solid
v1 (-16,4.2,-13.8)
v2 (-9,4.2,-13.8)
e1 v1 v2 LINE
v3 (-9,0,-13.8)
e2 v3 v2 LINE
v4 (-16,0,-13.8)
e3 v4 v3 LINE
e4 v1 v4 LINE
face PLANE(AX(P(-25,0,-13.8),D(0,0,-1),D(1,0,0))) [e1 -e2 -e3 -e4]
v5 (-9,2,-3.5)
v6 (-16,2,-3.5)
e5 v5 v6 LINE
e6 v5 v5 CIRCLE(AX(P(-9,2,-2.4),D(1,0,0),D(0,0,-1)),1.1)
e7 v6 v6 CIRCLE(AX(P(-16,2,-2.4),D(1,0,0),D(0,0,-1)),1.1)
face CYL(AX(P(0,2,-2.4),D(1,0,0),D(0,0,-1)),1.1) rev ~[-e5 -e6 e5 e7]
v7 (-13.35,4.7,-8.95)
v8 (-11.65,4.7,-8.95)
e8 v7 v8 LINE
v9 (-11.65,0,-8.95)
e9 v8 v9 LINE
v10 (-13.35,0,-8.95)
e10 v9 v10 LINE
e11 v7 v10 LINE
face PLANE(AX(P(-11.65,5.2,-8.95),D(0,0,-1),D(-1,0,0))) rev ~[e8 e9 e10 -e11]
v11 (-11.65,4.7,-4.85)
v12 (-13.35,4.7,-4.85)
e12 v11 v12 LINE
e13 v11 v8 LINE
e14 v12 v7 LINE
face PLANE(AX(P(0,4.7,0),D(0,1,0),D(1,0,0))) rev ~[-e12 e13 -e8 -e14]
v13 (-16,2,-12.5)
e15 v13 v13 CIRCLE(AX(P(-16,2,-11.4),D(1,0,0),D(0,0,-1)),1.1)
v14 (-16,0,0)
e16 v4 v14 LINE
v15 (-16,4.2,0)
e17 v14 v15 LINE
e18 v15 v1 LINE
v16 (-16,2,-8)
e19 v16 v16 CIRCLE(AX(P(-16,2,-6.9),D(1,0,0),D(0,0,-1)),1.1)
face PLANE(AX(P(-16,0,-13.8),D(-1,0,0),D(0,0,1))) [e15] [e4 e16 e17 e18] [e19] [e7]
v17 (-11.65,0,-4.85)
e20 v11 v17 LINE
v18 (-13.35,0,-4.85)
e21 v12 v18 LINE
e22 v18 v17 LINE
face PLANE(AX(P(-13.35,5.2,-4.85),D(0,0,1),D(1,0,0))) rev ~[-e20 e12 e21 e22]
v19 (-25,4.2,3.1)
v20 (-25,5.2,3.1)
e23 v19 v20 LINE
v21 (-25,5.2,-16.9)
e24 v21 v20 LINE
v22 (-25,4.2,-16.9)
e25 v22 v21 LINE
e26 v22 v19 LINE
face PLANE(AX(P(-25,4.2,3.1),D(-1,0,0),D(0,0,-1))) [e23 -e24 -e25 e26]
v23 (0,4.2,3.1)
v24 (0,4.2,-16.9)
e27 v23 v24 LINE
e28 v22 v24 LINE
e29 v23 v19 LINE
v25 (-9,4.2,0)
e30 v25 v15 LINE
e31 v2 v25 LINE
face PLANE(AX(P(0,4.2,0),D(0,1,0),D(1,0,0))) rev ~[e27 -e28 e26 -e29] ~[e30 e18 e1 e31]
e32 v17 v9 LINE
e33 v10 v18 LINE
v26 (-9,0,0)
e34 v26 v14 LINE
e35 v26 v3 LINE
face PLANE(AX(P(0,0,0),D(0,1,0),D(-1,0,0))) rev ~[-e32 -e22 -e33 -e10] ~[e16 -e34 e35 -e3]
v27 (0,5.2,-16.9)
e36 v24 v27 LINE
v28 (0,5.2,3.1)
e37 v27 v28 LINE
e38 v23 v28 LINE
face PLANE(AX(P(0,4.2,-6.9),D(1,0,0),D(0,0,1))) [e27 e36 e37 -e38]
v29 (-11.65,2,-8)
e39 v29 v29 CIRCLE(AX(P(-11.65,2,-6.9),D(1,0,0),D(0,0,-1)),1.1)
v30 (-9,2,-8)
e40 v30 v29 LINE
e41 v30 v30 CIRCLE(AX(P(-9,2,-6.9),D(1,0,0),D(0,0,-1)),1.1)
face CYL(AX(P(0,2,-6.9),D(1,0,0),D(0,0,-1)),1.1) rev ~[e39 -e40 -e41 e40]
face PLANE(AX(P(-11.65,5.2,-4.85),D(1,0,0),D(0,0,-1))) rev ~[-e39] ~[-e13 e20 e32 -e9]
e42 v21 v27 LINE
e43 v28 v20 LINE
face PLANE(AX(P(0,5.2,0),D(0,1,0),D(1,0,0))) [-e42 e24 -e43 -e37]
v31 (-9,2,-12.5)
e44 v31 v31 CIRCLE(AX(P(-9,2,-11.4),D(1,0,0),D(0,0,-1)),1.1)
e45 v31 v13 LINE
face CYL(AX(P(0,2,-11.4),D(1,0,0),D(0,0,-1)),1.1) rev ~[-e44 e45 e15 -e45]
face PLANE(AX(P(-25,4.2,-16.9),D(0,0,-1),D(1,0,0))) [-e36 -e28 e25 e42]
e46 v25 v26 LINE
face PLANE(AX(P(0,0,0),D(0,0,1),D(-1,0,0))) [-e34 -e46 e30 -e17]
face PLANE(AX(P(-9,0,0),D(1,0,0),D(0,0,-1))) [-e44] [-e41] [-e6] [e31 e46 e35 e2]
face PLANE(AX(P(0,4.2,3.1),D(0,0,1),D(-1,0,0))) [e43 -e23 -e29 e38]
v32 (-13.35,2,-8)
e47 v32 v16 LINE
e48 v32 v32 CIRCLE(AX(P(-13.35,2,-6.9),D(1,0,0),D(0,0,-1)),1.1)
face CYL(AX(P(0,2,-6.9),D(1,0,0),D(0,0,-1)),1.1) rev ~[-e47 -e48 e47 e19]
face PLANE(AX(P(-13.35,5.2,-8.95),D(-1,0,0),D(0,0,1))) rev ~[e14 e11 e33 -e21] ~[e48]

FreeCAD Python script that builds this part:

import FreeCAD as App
import Part
import Sketcher

V = App.Vector
Q = App.Units.Quantity

doc = App.newDocument("Part")
body = doc.addObject("PartDesign::Body", "Body")

sketch1 = body.newObject("Sketcher::SketchObject", "Sketch")
sketch1.AttachmentSupport = (doc.getObject("XZ_Plane"), [""])
sketch1.MapMode = "FlatFace"
sketch1.addGeometry([
    Part.LineSegment(V(-25, 0, 0), V(0, 0, 0)),
    Part.LineSegment(V(0, 0, 0), V(0, -14, 0)),
    Part.LineSegment(V(0, -14, 0), V(-25, -14, 0)),
    Part.LineSegment(V(-25, -14, 0), V(-25, 0, 0)),
], False)
sketch1.addConstraint([
    Sketcher.Constraint("Coincident", 0, 2, 1, 1),
    Sketcher.Constraint("Coincident", 1, 2, 2, 1),
    Sketcher.Constraint("Coincident", 2, 2, 3, 1),
    Sketcher.Constraint("Coincident", 3, 2, 0, 1),
    Sketcher.Constraint("Horizontal", 0),
    Sketcher.Constraint("Vertical", 1),
    Sketcher.Constraint("Horizontal", 2),
    Sketcher.Constraint("Vertical", 3),
    Sketcher.Constraint("Coincident", 0, 2, -1, 1),
    Sketcher.Constraint("DistanceX", 0, 1, 0, 2, Q("25 mm")),
    Sketcher.Constraint("DistanceY", 1, 2, 1, 1, Q("13.8 mm")),
])
pad1 = body.newObject("PartDesign::Pad", "Pad")
pad1.Profile = sketch1
pad1.Length = 4.2
pad1.Reversed = True

sketch2 = body.newObject("Sketcher::SketchObject", "Sketch001")
sketch2.AttachmentSupport = (doc.getObject("YZ_Plane"), [""])
sketch2.MapMode = "FlatFace"
sketch2.addGeometry([
    Part.Circle(V(2, -2.4, 0), V(0, 0, 1), 1.1),
    Part.Circle(V(2, -11.4, 0), V(0, 0, 1), 1.1),
], False)
sketch2.addConstraint([
    Sketcher.Constraint("Equal", 0, 1),
    Sketcher.Constraint("Vertical", 0, 3, 1, 3),
    Sketcher.Constraint("DistanceY", 1, 3, 0, 3, Q("9 mm")),
    Sketcher.Constraint("Diameter", 0, Q("2.1 mm")),
    Sketcher.Constraint("DistanceX", -1, 1, 0, 3, Q("2 mm")),
    Sketcher.Constraint("DistanceY", 0, 3, -1, 1, Q("2.4 mm")),
])
pocket1 = body.newObject("PartDesign::Pocket", "Pocket")
pocket1.Profile = sketch2
pocket1.Length = 20

sketch3 = body.newObject("Sketcher::SketchObject", "Sketch002")
sketch3.AttachmentSupport = (doc.getObject("XZ_Plane"), [""])
sketch3.MapMode = "FlatFace"
sketch3.AttachmentOffset = App.Placement(V(0, 0, -4.2), App.Rotation())
sketch3.addGeometry([
    Part.LineSegment(V(0, -17, 0), V(-25, -17, 0)),
    Part.LineSegment(V(-25, -17, 0), V(-25, 3, 0)),
    Part.LineSegment(V(-25, 3, 0), V(0, 3, 0)),
    Part.LineSegment(V(0, 3, 0), V(0, -17, 0)),
], False)
sketch3.addConstraint([
    Sketcher.Constraint("Coincident", 0, 2, 1, 1),
    Sketcher.Constraint("Coincident", 1, 2, 2, 1),
    Sketcher.Constraint("Coincident", 2, 2, 3, 1),
    Sketcher.Constraint("Coincident", 3, 2, 0, 1),
    Sketcher.Constraint("Horizontal", 0),
    Sketcher.Constraint("Vertical", 1),
    Sketcher.Constraint("Horizontal", 2),
    Sketcher.Constraint("Vertical", 3),
    Sketcher.Constraint("PointOnObject", 2, 2, -2),
    Sketcher.Constraint("DistanceX", 0, 2, 0, 1, Q("25 mm")),
    Sketcher.Constraint("DistanceY", 1, 1, 1, 2, Q("20 mm")),
    Sketcher.Constraint("DistanceY", 0, 2, -1, 1, Q("16.9 mm")),
])
pad2 = body.newObject("PartDesign::Pad", "Pad001")
pad2.Profile = sketch3
pad2.Length = 1
pad2.Reversed = True

sketch4 = body.newObject("Sketcher::SketchObject", "Sketch003")
sketch4.AttachmentSupport = (doc.getObject("YZ_Plane"), [""])
sketch4.MapMode = "FlatFace"
sketch4.addGeometry([
    Part.Circle(V(2, -2.4, 0), V(0, 0, 1), 1.1),
    Part.Circle(V(2, -11.4, 0), V(0, 0, 1), 1.1),
], False)
sketch4.addConstraint([
    Sketcher.Constraint("Equal", 0, 1),
    Sketcher.Constraint("Vertical", 0, 3, 1, 3),
    Sketcher.Constraint("Diameter", 0, Q("2.2 mm")),
    Sketcher.Constraint("DistanceX", -1, 1, 0, 3, Q("2 mm")),
    Sketcher.Constraint("DistanceY", 1, 3, 0, 3, Q("9 mm")),
    Sketcher.Constraint("DistanceY", 0, 3, -1, 1, Q("2.4 mm")),
])
pocket2 = body.newObject("PartDesign::Pocket", "Pocket001")
pocket2.Profile = sketch4
pocket2.Length = 30.5

sketch5 = body.newObject("Sketcher::SketchObject", "Sketch004")
sketch5.AttachmentSupport = (doc.getObject("XZ_Plane"), [""])
sketch5.MapMode = "FlatFace"
sketch5.AttachmentOffset = App.Placement(V(0, 0, -5.2), App.Rotation())
sketch5.addGeometry([
    Part.LineSegment(V(-13.3, -8.9, 0), V(-13.3, -4.8, 0)),
    Part.LineSegment(V(-13.3, -4.8, 0), V(-11.7, -4.8, 0)),
    Part.LineSegment(V(-11.7, -4.8, 0), V(-11.7, -8.9, 0)),
    Part.LineSegment(V(-11.7, -8.9, 0), V(-13.3, -8.9, 0)),
], False)
sketch5.addConstraint([
    Sketcher.Constraint("Coincident", 0, 2, 1, 1),
    Sketcher.Constraint("Coincident", 1, 2, 2, 1),
    Sketcher.Constraint("Coincident", 2, 2, 3, 1),
    Sketcher.Constraint("Coincident", 3, 2, 0, 1),
    Sketcher.Constraint("Vertical", 0),
    Sketcher.Constraint("Horizontal", 1),
    Sketcher.Constraint("Vertical", 2),
    Sketcher.Constraint("Horizontal", 3),
    Sketcher.Constraint("DistanceX", 1, 1, 1, 2, Q("1.7 mm")),
    Sketcher.Constraint("DistanceY", 0, 1, 0, 2, Q("4.1 mm")),
    Sketcher.Constraint("DistanceX", 1, 2, -1, 1, Q("11.65 mm")),
    Sketcher.Constraint("DistanceY", 0, 2, -1, 1, Q("4.85 mm")),
])
pocket3 = body.newObject("PartDesign::Pocket", "Pocket002")
pocket3.Profile = sketch5
pocket3.Length = 8.45
pocket3.Reversed = True

sketch6 = body.newObject("Sketcher::SketchObject", "Sketch005")
sketch6.AttachmentSupport = (doc.getObject("YZ_Plane"), [""])
sketch6.MapMode = "FlatFace"
sketch6.addGeometry(Part.Circle(V(2, -6.9, 0), V(0, 0, 1), 1.1), False)
sketch6.addConstraint([
    Sketcher.Constraint("Diameter", 0, Q("2.2 mm")),
    Sketcher.Constraint("DistanceX", -1, 1, 0, 3, Q("2 mm")),
    Sketcher.Constraint("DistanceY", 0, 3, -1, 1, Q("6.9 mm")),
])
pocket4 = body.newObject("PartDesign::Pocket", "Pocket003")
pocket4.Profile = sketch6
pocket4.Length = 31.95

sketch7 = body.newObject("Sketcher::SketchObject", "Sketch006")
sketch7.AttachmentSupport = (doc.getObject("XZ_Plane"), [""])
sketch7.MapMode = "FlatFace"
sketch7.AttachmentOffset = App.Placement(V(0, 0, -5.2), App.Rotation())
sketch7.addGeometry([
    Part.LineSegment(V(-13.3, -8.9, 0), V(-13.3, -4.8, 0)),
    Part.LineSegment(V(-13.3, -4.8, 0), V(-11.7, -4.8, 0)),
    Part.LineSegment(V(-11.7, -4.8, 0), V(-11.7, -8.9, 0)),
    Part.LineSegment(V(-11.7, -8.9, 0), V(-13.3, -8.9, 0)),
], False)
sketch7.addConstraint([
    Sketcher.Constraint("Coincident", 0, 2, 1, 1),
    Sketcher.Constraint("Coincident", 1, 2, 2, 1),
    Sketcher.Constraint("Coincident", 2, 2, 3, 1),
    Sketcher.Constraint("Coincident", 3, 2, 0, 1),
    Sketcher.Constraint("Vertical", 0),
    Sketcher.Constraint("Horizontal", 1),
    Sketcher.Constraint("Vertical", 2),
    Sketcher.Constraint("Horizontal", 3),
    Sketcher.Constraint("DistanceX", 1, 1, 1, 2, Q("1.7 mm")),
    Sketcher.Constraint("DistanceY", 0, 1, 0, 2, Q("4.1 mm")),
    Sketcher.Constraint("DistanceX", 0, 2, -1, 1, Q("13.35 mm")),
    Sketcher.Constraint("DistanceY", 0, 2, -1, 1, Q("4.85 mm")),
])
pad3 = body.newObject("PartDesign::Pad", "Pad002")
pad3.Profile = sketch7
pad3.Length = 0.5

sketch8 = body.newObject("Sketcher::SketchObject", "Sketch007")
sketch8.AttachmentSupport = (doc.getObject("YZ_Plane"), [""])
sketch8.MapMode = "FlatFace"
sketch8.addGeometry([
    Part.LineSegment(V(4.2, 0, 0), V(0, 0, 0)),
    Part.LineSegment(V(0, 0, 0), V(0, -13.8, 0)),
    Part.LineSegment(V(0, -13.8, 0), V(4.2, -13.8, 0)),
    Part.LineSegment(V(4.2, -13.8, 0), V(4.2, 0, 0)),
], False)
sketch8.addConstraint([
    Sketcher.Constraint("Coincident", 0, 2, 1, 1),
    Sketcher.Constraint("Coincident", 1, 2, 2, 1),
    Sketcher.Constraint("Coincident", 2, 2, 3, 1),
    Sketcher.Constraint("Coincident", 3, 2, 0, 1),
    Sketcher.Constraint("Horizontal", 0),
    Sketcher.Constraint("Vertical", 1),
    Sketcher.Constraint("Horizontal", 2),
    Sketcher.Constraint("Vertical", 3),
    Sketcher.Constraint("Coincident", 0, 2, -1, 1),
    Sketcher.Constraint("DistanceX", 0, 2, 0, 1, Q("4.2 mm")),
    Sketcher.Constraint("DistanceY", 1, 2, 1, 1, Q("13.8 mm")),
])
pocket5 = body.newObject("PartDesign::Pocket", "Pocket004")
pocket5.Profile = sketch8
pocket5.Length = 9

sketch9 = body.newObject("Sketcher::SketchObject", "Sketch008")
sketch9.AttachmentSupport = (doc.getObject("YZ_Plane"), [""])
sketch9.MapMode = "FlatFace"
sketch9.AttachmentOffset = App.Placement(V(0, 0, -25), App.Rotation())
sketch9.addGeometry([
    Part.LineSegment(V(0, -13.8, 0), V(0, 0, 0)),
    Part.LineSegment(V(0, 0, 0), V(4.2, 0, 0)),
    Part.LineSegment(V(4.2, 0, 0), V(4.2, -13.8, 0)),
    Part.LineSegment(V(4.2, -13.8, 0), V(0, -13.8, 0)),
], False)
sketch9.addConstraint([
    Sketcher.Constraint("Coincident", 0, 2, 1, 1),
    Sketcher.Constraint("Coincident", 1, 2, 2, 1),
    Sketcher.Constraint("Coincident", 2, 2, 3, 1),
    Sketcher.Constraint("Coincident", 3, 2, 0, 1),
    Sketcher.Constraint("Vertical", 0),
    Sketcher.Constraint("Horizontal", 1),
    Sketcher.Constraint("Vertical", 2),
    Sketcher.Constraint("Horizontal", 3),
    Sketcher.Constraint("Coincident", 0, 2, -1, 1),
    Sketcher.Constraint("DistanceX", 1, 1, 1, 2, Q("4.2 mm")),
    Sketcher.Constraint("DistanceY", 0, 1, 0, 2, Q("13.8 mm")),
])
pocket6 = body.newObject("PartDesign::Pocket", "Pocket005")
pocket6.Profile = sketch9
pocket6.Length = 9
pocket6.Reversed = True

doc.recompute()
